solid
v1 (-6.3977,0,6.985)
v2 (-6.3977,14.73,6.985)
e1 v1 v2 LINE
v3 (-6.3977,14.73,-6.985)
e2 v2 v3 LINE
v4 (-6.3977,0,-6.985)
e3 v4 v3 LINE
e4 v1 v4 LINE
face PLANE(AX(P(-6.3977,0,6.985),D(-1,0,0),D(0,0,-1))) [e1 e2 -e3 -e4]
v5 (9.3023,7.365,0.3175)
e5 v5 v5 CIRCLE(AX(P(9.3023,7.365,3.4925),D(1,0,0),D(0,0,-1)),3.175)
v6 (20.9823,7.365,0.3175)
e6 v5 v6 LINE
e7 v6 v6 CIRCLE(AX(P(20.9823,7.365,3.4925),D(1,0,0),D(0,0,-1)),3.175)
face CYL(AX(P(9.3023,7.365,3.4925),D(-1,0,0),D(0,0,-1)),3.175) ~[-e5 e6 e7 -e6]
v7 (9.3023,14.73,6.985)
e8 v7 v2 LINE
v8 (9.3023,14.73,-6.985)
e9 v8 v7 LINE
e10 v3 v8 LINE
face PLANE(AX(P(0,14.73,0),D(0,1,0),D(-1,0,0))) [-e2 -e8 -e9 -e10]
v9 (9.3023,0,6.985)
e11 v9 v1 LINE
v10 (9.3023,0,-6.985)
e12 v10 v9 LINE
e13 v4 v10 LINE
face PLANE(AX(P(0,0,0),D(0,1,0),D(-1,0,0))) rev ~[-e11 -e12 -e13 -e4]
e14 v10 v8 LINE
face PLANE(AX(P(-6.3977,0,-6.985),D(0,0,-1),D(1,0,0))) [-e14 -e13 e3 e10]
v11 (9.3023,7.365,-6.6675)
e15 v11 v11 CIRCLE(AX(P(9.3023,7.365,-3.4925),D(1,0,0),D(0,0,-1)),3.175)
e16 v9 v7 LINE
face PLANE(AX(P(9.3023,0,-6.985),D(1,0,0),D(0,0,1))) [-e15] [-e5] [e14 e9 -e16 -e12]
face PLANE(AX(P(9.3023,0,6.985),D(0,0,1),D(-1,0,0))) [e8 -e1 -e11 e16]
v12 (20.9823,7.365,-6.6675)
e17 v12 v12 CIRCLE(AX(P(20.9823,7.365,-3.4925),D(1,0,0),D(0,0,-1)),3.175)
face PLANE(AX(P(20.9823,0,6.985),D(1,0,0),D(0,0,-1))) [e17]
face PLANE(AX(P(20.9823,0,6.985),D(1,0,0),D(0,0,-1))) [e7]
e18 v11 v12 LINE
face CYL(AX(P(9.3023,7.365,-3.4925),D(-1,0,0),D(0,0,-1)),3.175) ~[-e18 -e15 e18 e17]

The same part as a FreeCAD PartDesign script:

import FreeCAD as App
import Part
import Sketcher
Q = App.Units.Quantity

doc = App.newDocument("Part")
body = doc.addObject("PartDesign::Body", "Body")

# Sketch on XZ plane
sketch1 = body.newObject("Sketcher::SketchObject", "Sketch")
sketch1.AttachmentSupport = (doc.getObject("XZ_Plane"), [""])
sketch1.MapMode = "FlatFace"
sketch1.addGeometry([
    Part.LineSegment(App.Vector(-6, 7, 0), App.Vector(9, 7, 0)),
    Part.LineSegment(App.Vector(9, 7, 0), App.Vector(9, -7, 0)),
    Part.LineSegment(App.Vector(9, -7, 0), App.Vector(-6, -7, 0)),
    Part.LineSegment(App.Vector(-6, -7, 0), App.Vector(-6, 7, 0)),
], False)
sketch1.addConstraint([
    Sketcher.Constraint("Coincident", 0, 2, 1, 1),
    Sketcher.Constraint("Coincident", 1, 2, 2, 1),
    Sketcher.Constraint("Coincident", 2, 2, 3, 1),
    Sketcher.Constraint("Coincident", 3, 2, 0, 1),
    Sketcher.Constraint("Horizontal", 0),
    Sketcher.Constraint("Vertical", 1),
    Sketcher.Constraint("Horizontal", 2),
    Sketcher.Constraint("Vertical", 3),
    Sketcher.Constraint("DistanceY", 1, 2, 1, 1, Q("0.55 in")),
    Sketcher.Constraint("DistanceX", 0, 1, 0, 2, Q("0.6181 in")),
    Sketcher.Constraint("DistanceY", -1, 1, 0, 2, Q("0.275 in")),
    Sketcher.Constraint("DistanceX", -1, 1, 0, 2, Q("9.3023 mm")),
])
pad1 = body.newObject("PartDesign::Pad", "Pad")
pad1.Profile = sketch1
pad1.Length = 14.73
pad1.Reversed = True

# Sketch on YZ plane
sketch2 = body.newObject("Sketcher::SketchObject", "Sketch001")
sketch2.AttachmentSupport = (doc.getObject("YZ_Plane"), [""])
sketch2.MapMode = "FlatFace"
sketch2.AttachmentOffset = App.Placement(App.Vector(0, 0, 9.3023), App.Rotation())
sketch2.addGeometry([
    Part.Circle(App.Vector(7.4, 3.5, 0), App.Vector(0, 0, 1), 3.2),
    Part.Circle(App.Vector(7.4, -3.5, 0), App.Vector(0, 0, 1), 3.2),
], False)
sketch2.addConstraint([
    Sketcher.Constraint("Equal", 0, 1),
    Sketcher.Constraint("Symmetric", 0, 3, 1, 3, -1),
    Sketcher.Constraint("Diameter", 0, Q("0.25 in")),
    Sketcher.Constraint("DistanceY", -1, 1, 0, 3, Q("0.1375 in")),
    Sketcher.Constraint("DistanceX", -1, 1, 0, 3, Q("7.365 mm")),
])
pad2 = body.newObject("PartDesign::Pad", "Pad001")
pad2.Profile = sketch2
pad2.Length = 11.68

doc.recompute()
